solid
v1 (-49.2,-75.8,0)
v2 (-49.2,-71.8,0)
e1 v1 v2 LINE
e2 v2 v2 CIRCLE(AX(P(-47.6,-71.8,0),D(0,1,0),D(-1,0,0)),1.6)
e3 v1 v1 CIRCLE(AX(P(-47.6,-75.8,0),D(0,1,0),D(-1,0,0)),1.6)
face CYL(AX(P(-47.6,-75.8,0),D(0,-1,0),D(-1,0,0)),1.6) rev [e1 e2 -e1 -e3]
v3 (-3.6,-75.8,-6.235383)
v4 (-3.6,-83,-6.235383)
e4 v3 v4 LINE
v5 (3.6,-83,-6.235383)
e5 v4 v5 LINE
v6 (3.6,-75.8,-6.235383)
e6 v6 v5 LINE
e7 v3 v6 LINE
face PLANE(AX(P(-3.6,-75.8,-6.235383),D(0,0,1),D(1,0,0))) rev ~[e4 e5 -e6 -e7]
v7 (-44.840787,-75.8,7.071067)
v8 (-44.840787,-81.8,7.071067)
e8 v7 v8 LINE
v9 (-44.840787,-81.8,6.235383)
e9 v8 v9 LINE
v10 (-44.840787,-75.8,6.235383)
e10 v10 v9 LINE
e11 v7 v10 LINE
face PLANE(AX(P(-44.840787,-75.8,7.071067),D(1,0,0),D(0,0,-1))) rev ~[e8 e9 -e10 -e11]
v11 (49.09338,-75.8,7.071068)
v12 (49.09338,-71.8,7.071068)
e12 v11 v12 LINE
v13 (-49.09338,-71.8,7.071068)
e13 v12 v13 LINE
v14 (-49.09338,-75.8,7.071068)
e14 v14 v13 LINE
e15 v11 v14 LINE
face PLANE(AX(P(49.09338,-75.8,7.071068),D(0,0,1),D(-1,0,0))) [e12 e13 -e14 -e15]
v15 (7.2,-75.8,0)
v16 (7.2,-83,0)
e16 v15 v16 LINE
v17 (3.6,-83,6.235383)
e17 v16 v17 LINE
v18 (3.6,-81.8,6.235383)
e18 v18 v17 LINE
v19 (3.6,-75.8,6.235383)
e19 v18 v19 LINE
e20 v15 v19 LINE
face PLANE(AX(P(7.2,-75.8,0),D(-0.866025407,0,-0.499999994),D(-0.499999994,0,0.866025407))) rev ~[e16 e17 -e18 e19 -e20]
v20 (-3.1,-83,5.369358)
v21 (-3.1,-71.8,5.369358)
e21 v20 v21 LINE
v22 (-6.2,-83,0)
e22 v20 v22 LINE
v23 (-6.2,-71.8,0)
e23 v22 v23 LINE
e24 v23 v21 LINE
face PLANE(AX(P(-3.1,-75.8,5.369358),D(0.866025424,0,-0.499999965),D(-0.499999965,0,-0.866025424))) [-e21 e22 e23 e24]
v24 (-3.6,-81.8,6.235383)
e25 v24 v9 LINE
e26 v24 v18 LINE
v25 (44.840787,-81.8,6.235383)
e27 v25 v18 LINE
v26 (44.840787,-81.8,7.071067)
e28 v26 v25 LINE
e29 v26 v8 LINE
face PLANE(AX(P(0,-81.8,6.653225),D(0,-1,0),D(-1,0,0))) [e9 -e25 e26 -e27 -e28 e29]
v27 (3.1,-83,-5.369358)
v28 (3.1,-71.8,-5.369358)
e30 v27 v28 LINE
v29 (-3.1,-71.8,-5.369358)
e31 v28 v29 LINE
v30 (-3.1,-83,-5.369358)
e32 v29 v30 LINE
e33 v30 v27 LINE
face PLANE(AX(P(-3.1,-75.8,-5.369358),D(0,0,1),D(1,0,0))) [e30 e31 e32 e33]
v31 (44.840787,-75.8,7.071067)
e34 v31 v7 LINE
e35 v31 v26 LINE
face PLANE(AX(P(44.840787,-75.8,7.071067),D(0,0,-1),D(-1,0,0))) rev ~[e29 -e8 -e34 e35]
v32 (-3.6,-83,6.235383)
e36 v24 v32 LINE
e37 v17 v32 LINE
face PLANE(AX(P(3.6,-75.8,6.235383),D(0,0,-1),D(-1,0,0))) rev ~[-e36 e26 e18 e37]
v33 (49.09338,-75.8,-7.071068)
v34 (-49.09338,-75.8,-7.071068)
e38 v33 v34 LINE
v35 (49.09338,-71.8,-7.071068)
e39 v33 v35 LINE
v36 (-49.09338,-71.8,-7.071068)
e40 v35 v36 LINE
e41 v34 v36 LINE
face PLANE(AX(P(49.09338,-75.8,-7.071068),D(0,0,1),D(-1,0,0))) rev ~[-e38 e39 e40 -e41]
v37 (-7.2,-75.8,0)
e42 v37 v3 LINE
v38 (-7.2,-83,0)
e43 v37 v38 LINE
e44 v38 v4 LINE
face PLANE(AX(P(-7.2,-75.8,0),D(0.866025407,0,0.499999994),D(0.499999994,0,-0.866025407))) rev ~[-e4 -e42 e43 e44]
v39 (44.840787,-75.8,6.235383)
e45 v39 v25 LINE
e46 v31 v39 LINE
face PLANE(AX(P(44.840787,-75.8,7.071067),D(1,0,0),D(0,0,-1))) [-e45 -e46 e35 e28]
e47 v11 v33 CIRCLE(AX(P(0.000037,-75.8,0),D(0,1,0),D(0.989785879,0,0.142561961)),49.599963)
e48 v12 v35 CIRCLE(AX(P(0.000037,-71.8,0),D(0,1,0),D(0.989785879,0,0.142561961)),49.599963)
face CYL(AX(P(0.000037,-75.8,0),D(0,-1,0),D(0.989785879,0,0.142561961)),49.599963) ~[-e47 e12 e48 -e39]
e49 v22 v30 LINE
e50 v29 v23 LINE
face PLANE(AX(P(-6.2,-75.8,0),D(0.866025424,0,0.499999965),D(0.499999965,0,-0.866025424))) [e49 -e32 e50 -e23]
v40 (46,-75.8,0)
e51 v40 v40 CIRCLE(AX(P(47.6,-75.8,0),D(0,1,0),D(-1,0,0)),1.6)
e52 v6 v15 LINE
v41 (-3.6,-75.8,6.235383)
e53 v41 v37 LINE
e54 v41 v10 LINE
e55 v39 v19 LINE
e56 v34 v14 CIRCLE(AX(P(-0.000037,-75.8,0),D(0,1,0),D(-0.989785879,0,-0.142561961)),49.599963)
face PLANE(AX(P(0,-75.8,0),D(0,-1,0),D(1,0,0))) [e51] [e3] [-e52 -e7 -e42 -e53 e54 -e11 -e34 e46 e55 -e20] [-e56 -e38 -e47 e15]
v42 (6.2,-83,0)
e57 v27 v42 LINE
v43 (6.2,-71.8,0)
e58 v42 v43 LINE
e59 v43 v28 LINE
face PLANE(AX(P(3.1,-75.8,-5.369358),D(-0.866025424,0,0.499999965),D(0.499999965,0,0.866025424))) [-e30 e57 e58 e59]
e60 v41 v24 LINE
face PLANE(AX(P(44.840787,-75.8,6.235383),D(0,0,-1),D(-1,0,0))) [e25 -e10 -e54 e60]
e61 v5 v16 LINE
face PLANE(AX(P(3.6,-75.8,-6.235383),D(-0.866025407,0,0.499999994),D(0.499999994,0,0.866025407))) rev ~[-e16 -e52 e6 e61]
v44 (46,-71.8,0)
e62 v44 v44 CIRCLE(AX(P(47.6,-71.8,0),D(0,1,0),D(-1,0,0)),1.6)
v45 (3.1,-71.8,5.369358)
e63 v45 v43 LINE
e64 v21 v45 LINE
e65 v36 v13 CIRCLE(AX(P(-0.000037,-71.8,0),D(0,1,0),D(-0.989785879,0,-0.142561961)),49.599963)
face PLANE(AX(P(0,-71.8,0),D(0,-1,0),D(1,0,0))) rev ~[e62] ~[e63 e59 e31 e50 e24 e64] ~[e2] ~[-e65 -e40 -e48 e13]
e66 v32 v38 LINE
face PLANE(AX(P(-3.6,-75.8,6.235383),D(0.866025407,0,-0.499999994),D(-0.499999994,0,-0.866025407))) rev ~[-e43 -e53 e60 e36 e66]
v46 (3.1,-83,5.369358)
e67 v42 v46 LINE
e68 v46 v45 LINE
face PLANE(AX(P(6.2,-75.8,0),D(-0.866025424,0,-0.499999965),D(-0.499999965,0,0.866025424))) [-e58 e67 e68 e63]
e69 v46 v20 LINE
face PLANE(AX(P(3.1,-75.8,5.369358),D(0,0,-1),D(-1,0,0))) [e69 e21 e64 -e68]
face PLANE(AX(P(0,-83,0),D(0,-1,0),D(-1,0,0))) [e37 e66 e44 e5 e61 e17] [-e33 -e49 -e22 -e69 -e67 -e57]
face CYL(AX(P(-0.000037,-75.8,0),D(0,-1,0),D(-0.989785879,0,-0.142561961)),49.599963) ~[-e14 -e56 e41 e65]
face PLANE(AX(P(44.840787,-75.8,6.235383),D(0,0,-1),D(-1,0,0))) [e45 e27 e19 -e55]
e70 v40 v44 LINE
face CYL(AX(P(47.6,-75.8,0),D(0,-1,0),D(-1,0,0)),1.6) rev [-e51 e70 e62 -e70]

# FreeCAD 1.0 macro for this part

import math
import FreeCAD as App
import Part
import Sketcher
Q = App.Units.Quantity


def add_polygon(sketch, points):
    """Adds a closed chain of lines whose ends are joined by coincident constraints."""
    first, n = sketch.GeometryCount, len(points)
    for a, b in zip(points, points[1:] + points[:1]):
        sketch.addGeometry(Part.LineSegment(App.Vector(*a, 0), App.Vector(*b, 0)), False)
    for i in range(n):
        sketch.addConstraint(Sketcher.Constraint("Coincident", first + i, 2, first + (i + 1) % n, 1))

doc = App.newDocument("Part")
params = doc.addObject("Spreadsheet::Sheet", "Params")
for row, (alias, value) in enumerate([
    ("sketch1_diameter", "3.2 mm"),
    ("sketch1_width", "6.2 mm"),
    ("sketch1_length", "6.2 mm"),
    ("pad1_length", "4 mm"),
    ("pad2_length", "6 mm"),
    ("sketch3_width", "7.2 mm"),
    ("sketch3_width2", "6.2 mm"),
    ("sketch3_length", "7.2 mm"),
    ("pad3_length", "7.2 mm"),
], start=1):
    params.set(f"A{row}", alias)
    params.set(f"B{row}", "=" + value)
    params.setAlias(f"B{row}", alias)

body = doc.addObject("PartDesign::Body", "Body")

# Sketch on XZ plane
sketch1 = doc.addObject("Sketcher::SketchObject", "Sketch")
body.addObject(sketch1)
sketch1.AttachmentSupport = (doc.XZ_Plane, [""])
sketch1.MapMode = "FlatFace"
sketch1.addGeometry(Part.LineSegment(App.Vector(49.09338, 7.071068, 0), App.Vector(-49.09338, 7.071068, 0)), False)  # 0
sketch1.addGeometry(Part.ArcOfCircle(Part.Circle(App.Vector(-0.000037, 0, 0), App.Vector(0, 0, 1), 49.599963), math.radians(171.803877), math.radians(188.196123)), False)  # 1
sketch1.addGeometry(Part.LineSegment(App.Vector(-49.09338, -7.071068, 0), App.Vector(49.09338, -7.071068, 0)), False)  # 2
sketch1.addGeometry(Part.ArcOfCircle(Part.Circle(App.Vector(0.000037, 0, 0), App.Vector(0, 0, 1), 49.599963), math.radians(-8.196123), math.radians(8.196123)), False)  # 3
sketch1.addGeometry(Part.Circle(App.Vector(47.6, 0, 0), App.Vector(0, 0, 1), 1.6), False)  # 4
add_polygon(sketch1, [(6.2, 0), (3.1, -5.369358), (-3.1, -5.369358), (-6.2, 0), (-3.1, 5.369358), (3.1, 5.369358)])  # lines 5-10
sketch1.addGeometry(Part.Circle(App.Vector(-47.6, 0, 0), App.Vector(0, 0, 1), 1.6), False)  # 11
sketch1.addConstraint(Sketcher.Constraint("Coincident", 0, 2, 1, 1))
sketch1.addConstraint(Sketcher.Constraint("Coincident", 1, 2, 2, 1))
sketch1.addConstraint(Sketcher.Constraint("Coincident", 2, 2, 3, 1))
sketch1.addConstraint(Sketcher.Constraint("Coincident", 3, 2, 0, 1))
sketch1.addConstraint(Sketcher.Constraint("Horizontal", 0))
sketch1.addConstraint(Sketcher.Constraint("Horizontal", 2))
sketch1.addConstraint(Sketcher.Constraint("Horizontal", 6))
sketch1.addConstraint(Sketcher.Constraint("Horizontal", 9))
sketch1.addConstraint(Sketcher.Constraint("Equal", 1, 3))
sketch1.addConstraint(Sketcher.Constraint("Equal", 4, 11))
sketch1.addConstraint(Sketcher.Constraint("Symmetric", 1, 3, 3, 3, -1, 1))
sketch1.addConstraint(Sketcher.Constraint("Symmetric", 4, 3, 11, 3, -1, 1))
sketch1.addConstraint(Sketcher.Constraint("Symmetric", 5, 2, 8, 2, -1, 1))
sketch1.addConstraint(Sketcher.Constraint("Symmetric", 7, 2, 10, 2, -1, 1))
sketch1.addConstraint(Sketcher.Constraint("Symmetric", 0, 2, 1, 2, -1))
sketch1.addConstraint(Sketcher.Constraint("PointOnObject", 4, 3, -1))
sketch1.addConstraint(Sketcher.Constraint("PointOnObject", 7, 2, -1))
sketch1.addConstraint(Sketcher.Constraint("Parallel", 7, 10))
sketch1.addConstraint(Sketcher.Constraint("Vertical", 6, 2, 8, 2))
sketch1.addConstraint(Sketcher.Constraint("Diameter", 4, 3.2))
sketch1.addConstraint(Sketcher.Constraint("Angle", 5, Q("-119.999998 deg")))
sketch1.addConstraint(Sketcher.Constraint("DistanceX", 6, 2, 6, 1, 6.2))
sketch1.addConstraint(Sketcher.Constraint("Distance", 5, 6.2))
sketch1.addConstraint(Sketcher.Constraint("DistanceX", -1, 1, 4, 3, 47.6))
sketch1.addConstraint(Sketcher.Constraint("Radius", 1, 49.599963))
sketch1.addConstraint(Sketcher.Constraint("DistanceX", 0, 2, 0, 1, 98.18676))
sketch1.addConstraint(Sketcher.Constraint("DistanceY", -1, 1, 0, 2, 7.071068))
sketch1.setExpression("Constraints[25]", "Params.sketch1_diameter")
sketch1.setExpression("Constraints[27]", "Params.sketch1_width")
sketch1.setExpression("Constraints[28]", "Params.sketch1_length")
pad1 = doc.addObject("PartDesign::Pad", "Pad")
body.addObject(pad1)
pad1.Profile = sketch1
pad1.setExpression("Length", "Params.pad1_length")

# Sketch on XZ plane
sketch2 = doc.addObject("Sketcher::SketchObject", "Sketch001")
body.addObject(sketch2)
sketch2.AttachmentSupport = (doc.XZ_Plane, [""])
sketch2.MapMode = "FlatFace"
add_polygon(sketch2, [(-44.8, 6.2), (-44.8, 7.1), (44.8, 7.1), (44.8, 6.2)])  # lines 0-3
sketch2.addConstraint(Sketcher.Constraint("Vertical", 0))
sketch2.addConstraint(Sketcher.Constraint("Horizontal", 1))
sketch2.addConstraint(Sketcher.Constraint("Vertical", 2))
sketch2.addConstraint(Sketcher.Constraint("Horizontal", 3))
sketch2.addConstraint(Sketcher.Constraint("DistanceX", 1, 1, 1, 2, 89.681574))
sketch2.addConstraint(Sketcher.Constraint("DistanceY", 0, 1, 0, 2, 0.835685))
sketch2.addConstraint(Sketcher.Constraint("DistanceX", 0, 2, -1, 1, 44.840787))
sketch2.addConstraint(Sketcher.Constraint("DistanceY", -1, 1, 0, 2, 7.071067))
pad2 = doc.addObject("PartDesign::Pad", "Pad001")
body.addObject(pad2)
pad2.Profile = sketch2
pad2.setExpression("Length", "Params.pad2_length")
pad2.Reversed = True

# Sketch on XZ plane
sketch3 = doc.addObject("Sketcher::SketchObject", "Sketch002")
body.addObject(sketch3)
sketch3.AttachmentSupport = (doc.XZ_Plane, [""])
sketch3.MapMode = "FlatFace"
add_polygon(sketch3, [(4, -6), (-4, -6), (-7, 0), (-4, 6), (4, 6), (7, 0)])  # lines 0-5
add_polygon(sketch3, [(-3, -5), (3, -5), (6, 0), (3, 5), (-3, 5), (-6, 0)])  # lines 6-11
sketch3.addConstraint(Sketcher.Constraint("Horizontal", 0))
sketch3.addConstraint(Sketcher.Constraint("Horizontal", 3))
sketch3.addConstraint(Sketcher.Constraint("Horizontal", 6))
sketch3.addConstraint(Sketcher.Constraint("Horizontal", 9))
sketch3.addConstraint(Sketcher.Constraint("Symmetric", 0, 2, 3, 2, -1, 1))
sketch3.addConstraint(Sketcher.Constraint("Symmetric", 1, 2, 4, 2, -1, 1))
sketch3.addConstraint(Sketcher.Constraint("Symmetric", 6, 2, 9, 2, -1, 1))
sketch3.addConstraint(Sketcher.Constraint("Symmetric", 7, 2, 10, 2, -1, 1))
sketch3.addConstraint(Sketcher.Constraint("PointOnObject", 1, 2, -1))
sketch3.addConstraint(Sketcher.Constraint("PointOnObject", 7, 2, -1))
sketch3.addConstraint(Sketcher.Constraint("Parallel", 2, 5))
sketch3.addConstraint(Sketcher.Constraint("Parallel", 5, 7))
sketch3.addConstraint(Sketcher.Constraint("Parallel", 4, 8))
sketch3.addConstraint(Sketcher.Constraint("Parallel", 8, 11))
sketch3.addConstraint(Sketcher.Constraint("Vertical", 0, 2, 2, 2))
sketch3.addConstraint(Sketcher.Constraint("Angle", 1, Q("120 deg")))
sketch3.addConstraint(Sketcher.Constraint("DistanceX", 0, 2, 0, 1, 7.2))
sketch3.addConstraint(Sketcher.Constraint("DistanceX", 6, 1, 6, 2, 6.2))
sketch3.addConstraint(Sketcher.Constraint("DistanceX", 7, 2, 4, 2, 1.0))
sketch3.addConstraint(Sketcher.Constraint("Distance", 1, 7.2))
sketch3.setExpression("Constraints[28]", "Params.sketch3_width")
sketch3.setExpression("Constraints[29]", "Params.sketch3_width2")
sketch3.setExpression("Constraints[31]", "Params.sketch3_length")
pad3 = doc.addObject("PartDesign::Pad", "Pad002")
body.addObject(pad3)
pad3.Profile = sketch3
pad3.setExpression("Length", "Params.pad3_length")
pad3.Reversed = True
body2 = doc.addObject("PartDesign::Body", "Body001")
doc.recompute()

body.Placement = App.Placement(App.Vector(0, -75.8, 0), App.Rotation(App.Vector(0, 0, 1), 180))
boolean = doc.addObject("PartDesign::Boolean", "Boolean")
body2.addObject(boolean)
boolean.Type = "Fuse"
boolean.addObjects([body])

doc.recompute()
